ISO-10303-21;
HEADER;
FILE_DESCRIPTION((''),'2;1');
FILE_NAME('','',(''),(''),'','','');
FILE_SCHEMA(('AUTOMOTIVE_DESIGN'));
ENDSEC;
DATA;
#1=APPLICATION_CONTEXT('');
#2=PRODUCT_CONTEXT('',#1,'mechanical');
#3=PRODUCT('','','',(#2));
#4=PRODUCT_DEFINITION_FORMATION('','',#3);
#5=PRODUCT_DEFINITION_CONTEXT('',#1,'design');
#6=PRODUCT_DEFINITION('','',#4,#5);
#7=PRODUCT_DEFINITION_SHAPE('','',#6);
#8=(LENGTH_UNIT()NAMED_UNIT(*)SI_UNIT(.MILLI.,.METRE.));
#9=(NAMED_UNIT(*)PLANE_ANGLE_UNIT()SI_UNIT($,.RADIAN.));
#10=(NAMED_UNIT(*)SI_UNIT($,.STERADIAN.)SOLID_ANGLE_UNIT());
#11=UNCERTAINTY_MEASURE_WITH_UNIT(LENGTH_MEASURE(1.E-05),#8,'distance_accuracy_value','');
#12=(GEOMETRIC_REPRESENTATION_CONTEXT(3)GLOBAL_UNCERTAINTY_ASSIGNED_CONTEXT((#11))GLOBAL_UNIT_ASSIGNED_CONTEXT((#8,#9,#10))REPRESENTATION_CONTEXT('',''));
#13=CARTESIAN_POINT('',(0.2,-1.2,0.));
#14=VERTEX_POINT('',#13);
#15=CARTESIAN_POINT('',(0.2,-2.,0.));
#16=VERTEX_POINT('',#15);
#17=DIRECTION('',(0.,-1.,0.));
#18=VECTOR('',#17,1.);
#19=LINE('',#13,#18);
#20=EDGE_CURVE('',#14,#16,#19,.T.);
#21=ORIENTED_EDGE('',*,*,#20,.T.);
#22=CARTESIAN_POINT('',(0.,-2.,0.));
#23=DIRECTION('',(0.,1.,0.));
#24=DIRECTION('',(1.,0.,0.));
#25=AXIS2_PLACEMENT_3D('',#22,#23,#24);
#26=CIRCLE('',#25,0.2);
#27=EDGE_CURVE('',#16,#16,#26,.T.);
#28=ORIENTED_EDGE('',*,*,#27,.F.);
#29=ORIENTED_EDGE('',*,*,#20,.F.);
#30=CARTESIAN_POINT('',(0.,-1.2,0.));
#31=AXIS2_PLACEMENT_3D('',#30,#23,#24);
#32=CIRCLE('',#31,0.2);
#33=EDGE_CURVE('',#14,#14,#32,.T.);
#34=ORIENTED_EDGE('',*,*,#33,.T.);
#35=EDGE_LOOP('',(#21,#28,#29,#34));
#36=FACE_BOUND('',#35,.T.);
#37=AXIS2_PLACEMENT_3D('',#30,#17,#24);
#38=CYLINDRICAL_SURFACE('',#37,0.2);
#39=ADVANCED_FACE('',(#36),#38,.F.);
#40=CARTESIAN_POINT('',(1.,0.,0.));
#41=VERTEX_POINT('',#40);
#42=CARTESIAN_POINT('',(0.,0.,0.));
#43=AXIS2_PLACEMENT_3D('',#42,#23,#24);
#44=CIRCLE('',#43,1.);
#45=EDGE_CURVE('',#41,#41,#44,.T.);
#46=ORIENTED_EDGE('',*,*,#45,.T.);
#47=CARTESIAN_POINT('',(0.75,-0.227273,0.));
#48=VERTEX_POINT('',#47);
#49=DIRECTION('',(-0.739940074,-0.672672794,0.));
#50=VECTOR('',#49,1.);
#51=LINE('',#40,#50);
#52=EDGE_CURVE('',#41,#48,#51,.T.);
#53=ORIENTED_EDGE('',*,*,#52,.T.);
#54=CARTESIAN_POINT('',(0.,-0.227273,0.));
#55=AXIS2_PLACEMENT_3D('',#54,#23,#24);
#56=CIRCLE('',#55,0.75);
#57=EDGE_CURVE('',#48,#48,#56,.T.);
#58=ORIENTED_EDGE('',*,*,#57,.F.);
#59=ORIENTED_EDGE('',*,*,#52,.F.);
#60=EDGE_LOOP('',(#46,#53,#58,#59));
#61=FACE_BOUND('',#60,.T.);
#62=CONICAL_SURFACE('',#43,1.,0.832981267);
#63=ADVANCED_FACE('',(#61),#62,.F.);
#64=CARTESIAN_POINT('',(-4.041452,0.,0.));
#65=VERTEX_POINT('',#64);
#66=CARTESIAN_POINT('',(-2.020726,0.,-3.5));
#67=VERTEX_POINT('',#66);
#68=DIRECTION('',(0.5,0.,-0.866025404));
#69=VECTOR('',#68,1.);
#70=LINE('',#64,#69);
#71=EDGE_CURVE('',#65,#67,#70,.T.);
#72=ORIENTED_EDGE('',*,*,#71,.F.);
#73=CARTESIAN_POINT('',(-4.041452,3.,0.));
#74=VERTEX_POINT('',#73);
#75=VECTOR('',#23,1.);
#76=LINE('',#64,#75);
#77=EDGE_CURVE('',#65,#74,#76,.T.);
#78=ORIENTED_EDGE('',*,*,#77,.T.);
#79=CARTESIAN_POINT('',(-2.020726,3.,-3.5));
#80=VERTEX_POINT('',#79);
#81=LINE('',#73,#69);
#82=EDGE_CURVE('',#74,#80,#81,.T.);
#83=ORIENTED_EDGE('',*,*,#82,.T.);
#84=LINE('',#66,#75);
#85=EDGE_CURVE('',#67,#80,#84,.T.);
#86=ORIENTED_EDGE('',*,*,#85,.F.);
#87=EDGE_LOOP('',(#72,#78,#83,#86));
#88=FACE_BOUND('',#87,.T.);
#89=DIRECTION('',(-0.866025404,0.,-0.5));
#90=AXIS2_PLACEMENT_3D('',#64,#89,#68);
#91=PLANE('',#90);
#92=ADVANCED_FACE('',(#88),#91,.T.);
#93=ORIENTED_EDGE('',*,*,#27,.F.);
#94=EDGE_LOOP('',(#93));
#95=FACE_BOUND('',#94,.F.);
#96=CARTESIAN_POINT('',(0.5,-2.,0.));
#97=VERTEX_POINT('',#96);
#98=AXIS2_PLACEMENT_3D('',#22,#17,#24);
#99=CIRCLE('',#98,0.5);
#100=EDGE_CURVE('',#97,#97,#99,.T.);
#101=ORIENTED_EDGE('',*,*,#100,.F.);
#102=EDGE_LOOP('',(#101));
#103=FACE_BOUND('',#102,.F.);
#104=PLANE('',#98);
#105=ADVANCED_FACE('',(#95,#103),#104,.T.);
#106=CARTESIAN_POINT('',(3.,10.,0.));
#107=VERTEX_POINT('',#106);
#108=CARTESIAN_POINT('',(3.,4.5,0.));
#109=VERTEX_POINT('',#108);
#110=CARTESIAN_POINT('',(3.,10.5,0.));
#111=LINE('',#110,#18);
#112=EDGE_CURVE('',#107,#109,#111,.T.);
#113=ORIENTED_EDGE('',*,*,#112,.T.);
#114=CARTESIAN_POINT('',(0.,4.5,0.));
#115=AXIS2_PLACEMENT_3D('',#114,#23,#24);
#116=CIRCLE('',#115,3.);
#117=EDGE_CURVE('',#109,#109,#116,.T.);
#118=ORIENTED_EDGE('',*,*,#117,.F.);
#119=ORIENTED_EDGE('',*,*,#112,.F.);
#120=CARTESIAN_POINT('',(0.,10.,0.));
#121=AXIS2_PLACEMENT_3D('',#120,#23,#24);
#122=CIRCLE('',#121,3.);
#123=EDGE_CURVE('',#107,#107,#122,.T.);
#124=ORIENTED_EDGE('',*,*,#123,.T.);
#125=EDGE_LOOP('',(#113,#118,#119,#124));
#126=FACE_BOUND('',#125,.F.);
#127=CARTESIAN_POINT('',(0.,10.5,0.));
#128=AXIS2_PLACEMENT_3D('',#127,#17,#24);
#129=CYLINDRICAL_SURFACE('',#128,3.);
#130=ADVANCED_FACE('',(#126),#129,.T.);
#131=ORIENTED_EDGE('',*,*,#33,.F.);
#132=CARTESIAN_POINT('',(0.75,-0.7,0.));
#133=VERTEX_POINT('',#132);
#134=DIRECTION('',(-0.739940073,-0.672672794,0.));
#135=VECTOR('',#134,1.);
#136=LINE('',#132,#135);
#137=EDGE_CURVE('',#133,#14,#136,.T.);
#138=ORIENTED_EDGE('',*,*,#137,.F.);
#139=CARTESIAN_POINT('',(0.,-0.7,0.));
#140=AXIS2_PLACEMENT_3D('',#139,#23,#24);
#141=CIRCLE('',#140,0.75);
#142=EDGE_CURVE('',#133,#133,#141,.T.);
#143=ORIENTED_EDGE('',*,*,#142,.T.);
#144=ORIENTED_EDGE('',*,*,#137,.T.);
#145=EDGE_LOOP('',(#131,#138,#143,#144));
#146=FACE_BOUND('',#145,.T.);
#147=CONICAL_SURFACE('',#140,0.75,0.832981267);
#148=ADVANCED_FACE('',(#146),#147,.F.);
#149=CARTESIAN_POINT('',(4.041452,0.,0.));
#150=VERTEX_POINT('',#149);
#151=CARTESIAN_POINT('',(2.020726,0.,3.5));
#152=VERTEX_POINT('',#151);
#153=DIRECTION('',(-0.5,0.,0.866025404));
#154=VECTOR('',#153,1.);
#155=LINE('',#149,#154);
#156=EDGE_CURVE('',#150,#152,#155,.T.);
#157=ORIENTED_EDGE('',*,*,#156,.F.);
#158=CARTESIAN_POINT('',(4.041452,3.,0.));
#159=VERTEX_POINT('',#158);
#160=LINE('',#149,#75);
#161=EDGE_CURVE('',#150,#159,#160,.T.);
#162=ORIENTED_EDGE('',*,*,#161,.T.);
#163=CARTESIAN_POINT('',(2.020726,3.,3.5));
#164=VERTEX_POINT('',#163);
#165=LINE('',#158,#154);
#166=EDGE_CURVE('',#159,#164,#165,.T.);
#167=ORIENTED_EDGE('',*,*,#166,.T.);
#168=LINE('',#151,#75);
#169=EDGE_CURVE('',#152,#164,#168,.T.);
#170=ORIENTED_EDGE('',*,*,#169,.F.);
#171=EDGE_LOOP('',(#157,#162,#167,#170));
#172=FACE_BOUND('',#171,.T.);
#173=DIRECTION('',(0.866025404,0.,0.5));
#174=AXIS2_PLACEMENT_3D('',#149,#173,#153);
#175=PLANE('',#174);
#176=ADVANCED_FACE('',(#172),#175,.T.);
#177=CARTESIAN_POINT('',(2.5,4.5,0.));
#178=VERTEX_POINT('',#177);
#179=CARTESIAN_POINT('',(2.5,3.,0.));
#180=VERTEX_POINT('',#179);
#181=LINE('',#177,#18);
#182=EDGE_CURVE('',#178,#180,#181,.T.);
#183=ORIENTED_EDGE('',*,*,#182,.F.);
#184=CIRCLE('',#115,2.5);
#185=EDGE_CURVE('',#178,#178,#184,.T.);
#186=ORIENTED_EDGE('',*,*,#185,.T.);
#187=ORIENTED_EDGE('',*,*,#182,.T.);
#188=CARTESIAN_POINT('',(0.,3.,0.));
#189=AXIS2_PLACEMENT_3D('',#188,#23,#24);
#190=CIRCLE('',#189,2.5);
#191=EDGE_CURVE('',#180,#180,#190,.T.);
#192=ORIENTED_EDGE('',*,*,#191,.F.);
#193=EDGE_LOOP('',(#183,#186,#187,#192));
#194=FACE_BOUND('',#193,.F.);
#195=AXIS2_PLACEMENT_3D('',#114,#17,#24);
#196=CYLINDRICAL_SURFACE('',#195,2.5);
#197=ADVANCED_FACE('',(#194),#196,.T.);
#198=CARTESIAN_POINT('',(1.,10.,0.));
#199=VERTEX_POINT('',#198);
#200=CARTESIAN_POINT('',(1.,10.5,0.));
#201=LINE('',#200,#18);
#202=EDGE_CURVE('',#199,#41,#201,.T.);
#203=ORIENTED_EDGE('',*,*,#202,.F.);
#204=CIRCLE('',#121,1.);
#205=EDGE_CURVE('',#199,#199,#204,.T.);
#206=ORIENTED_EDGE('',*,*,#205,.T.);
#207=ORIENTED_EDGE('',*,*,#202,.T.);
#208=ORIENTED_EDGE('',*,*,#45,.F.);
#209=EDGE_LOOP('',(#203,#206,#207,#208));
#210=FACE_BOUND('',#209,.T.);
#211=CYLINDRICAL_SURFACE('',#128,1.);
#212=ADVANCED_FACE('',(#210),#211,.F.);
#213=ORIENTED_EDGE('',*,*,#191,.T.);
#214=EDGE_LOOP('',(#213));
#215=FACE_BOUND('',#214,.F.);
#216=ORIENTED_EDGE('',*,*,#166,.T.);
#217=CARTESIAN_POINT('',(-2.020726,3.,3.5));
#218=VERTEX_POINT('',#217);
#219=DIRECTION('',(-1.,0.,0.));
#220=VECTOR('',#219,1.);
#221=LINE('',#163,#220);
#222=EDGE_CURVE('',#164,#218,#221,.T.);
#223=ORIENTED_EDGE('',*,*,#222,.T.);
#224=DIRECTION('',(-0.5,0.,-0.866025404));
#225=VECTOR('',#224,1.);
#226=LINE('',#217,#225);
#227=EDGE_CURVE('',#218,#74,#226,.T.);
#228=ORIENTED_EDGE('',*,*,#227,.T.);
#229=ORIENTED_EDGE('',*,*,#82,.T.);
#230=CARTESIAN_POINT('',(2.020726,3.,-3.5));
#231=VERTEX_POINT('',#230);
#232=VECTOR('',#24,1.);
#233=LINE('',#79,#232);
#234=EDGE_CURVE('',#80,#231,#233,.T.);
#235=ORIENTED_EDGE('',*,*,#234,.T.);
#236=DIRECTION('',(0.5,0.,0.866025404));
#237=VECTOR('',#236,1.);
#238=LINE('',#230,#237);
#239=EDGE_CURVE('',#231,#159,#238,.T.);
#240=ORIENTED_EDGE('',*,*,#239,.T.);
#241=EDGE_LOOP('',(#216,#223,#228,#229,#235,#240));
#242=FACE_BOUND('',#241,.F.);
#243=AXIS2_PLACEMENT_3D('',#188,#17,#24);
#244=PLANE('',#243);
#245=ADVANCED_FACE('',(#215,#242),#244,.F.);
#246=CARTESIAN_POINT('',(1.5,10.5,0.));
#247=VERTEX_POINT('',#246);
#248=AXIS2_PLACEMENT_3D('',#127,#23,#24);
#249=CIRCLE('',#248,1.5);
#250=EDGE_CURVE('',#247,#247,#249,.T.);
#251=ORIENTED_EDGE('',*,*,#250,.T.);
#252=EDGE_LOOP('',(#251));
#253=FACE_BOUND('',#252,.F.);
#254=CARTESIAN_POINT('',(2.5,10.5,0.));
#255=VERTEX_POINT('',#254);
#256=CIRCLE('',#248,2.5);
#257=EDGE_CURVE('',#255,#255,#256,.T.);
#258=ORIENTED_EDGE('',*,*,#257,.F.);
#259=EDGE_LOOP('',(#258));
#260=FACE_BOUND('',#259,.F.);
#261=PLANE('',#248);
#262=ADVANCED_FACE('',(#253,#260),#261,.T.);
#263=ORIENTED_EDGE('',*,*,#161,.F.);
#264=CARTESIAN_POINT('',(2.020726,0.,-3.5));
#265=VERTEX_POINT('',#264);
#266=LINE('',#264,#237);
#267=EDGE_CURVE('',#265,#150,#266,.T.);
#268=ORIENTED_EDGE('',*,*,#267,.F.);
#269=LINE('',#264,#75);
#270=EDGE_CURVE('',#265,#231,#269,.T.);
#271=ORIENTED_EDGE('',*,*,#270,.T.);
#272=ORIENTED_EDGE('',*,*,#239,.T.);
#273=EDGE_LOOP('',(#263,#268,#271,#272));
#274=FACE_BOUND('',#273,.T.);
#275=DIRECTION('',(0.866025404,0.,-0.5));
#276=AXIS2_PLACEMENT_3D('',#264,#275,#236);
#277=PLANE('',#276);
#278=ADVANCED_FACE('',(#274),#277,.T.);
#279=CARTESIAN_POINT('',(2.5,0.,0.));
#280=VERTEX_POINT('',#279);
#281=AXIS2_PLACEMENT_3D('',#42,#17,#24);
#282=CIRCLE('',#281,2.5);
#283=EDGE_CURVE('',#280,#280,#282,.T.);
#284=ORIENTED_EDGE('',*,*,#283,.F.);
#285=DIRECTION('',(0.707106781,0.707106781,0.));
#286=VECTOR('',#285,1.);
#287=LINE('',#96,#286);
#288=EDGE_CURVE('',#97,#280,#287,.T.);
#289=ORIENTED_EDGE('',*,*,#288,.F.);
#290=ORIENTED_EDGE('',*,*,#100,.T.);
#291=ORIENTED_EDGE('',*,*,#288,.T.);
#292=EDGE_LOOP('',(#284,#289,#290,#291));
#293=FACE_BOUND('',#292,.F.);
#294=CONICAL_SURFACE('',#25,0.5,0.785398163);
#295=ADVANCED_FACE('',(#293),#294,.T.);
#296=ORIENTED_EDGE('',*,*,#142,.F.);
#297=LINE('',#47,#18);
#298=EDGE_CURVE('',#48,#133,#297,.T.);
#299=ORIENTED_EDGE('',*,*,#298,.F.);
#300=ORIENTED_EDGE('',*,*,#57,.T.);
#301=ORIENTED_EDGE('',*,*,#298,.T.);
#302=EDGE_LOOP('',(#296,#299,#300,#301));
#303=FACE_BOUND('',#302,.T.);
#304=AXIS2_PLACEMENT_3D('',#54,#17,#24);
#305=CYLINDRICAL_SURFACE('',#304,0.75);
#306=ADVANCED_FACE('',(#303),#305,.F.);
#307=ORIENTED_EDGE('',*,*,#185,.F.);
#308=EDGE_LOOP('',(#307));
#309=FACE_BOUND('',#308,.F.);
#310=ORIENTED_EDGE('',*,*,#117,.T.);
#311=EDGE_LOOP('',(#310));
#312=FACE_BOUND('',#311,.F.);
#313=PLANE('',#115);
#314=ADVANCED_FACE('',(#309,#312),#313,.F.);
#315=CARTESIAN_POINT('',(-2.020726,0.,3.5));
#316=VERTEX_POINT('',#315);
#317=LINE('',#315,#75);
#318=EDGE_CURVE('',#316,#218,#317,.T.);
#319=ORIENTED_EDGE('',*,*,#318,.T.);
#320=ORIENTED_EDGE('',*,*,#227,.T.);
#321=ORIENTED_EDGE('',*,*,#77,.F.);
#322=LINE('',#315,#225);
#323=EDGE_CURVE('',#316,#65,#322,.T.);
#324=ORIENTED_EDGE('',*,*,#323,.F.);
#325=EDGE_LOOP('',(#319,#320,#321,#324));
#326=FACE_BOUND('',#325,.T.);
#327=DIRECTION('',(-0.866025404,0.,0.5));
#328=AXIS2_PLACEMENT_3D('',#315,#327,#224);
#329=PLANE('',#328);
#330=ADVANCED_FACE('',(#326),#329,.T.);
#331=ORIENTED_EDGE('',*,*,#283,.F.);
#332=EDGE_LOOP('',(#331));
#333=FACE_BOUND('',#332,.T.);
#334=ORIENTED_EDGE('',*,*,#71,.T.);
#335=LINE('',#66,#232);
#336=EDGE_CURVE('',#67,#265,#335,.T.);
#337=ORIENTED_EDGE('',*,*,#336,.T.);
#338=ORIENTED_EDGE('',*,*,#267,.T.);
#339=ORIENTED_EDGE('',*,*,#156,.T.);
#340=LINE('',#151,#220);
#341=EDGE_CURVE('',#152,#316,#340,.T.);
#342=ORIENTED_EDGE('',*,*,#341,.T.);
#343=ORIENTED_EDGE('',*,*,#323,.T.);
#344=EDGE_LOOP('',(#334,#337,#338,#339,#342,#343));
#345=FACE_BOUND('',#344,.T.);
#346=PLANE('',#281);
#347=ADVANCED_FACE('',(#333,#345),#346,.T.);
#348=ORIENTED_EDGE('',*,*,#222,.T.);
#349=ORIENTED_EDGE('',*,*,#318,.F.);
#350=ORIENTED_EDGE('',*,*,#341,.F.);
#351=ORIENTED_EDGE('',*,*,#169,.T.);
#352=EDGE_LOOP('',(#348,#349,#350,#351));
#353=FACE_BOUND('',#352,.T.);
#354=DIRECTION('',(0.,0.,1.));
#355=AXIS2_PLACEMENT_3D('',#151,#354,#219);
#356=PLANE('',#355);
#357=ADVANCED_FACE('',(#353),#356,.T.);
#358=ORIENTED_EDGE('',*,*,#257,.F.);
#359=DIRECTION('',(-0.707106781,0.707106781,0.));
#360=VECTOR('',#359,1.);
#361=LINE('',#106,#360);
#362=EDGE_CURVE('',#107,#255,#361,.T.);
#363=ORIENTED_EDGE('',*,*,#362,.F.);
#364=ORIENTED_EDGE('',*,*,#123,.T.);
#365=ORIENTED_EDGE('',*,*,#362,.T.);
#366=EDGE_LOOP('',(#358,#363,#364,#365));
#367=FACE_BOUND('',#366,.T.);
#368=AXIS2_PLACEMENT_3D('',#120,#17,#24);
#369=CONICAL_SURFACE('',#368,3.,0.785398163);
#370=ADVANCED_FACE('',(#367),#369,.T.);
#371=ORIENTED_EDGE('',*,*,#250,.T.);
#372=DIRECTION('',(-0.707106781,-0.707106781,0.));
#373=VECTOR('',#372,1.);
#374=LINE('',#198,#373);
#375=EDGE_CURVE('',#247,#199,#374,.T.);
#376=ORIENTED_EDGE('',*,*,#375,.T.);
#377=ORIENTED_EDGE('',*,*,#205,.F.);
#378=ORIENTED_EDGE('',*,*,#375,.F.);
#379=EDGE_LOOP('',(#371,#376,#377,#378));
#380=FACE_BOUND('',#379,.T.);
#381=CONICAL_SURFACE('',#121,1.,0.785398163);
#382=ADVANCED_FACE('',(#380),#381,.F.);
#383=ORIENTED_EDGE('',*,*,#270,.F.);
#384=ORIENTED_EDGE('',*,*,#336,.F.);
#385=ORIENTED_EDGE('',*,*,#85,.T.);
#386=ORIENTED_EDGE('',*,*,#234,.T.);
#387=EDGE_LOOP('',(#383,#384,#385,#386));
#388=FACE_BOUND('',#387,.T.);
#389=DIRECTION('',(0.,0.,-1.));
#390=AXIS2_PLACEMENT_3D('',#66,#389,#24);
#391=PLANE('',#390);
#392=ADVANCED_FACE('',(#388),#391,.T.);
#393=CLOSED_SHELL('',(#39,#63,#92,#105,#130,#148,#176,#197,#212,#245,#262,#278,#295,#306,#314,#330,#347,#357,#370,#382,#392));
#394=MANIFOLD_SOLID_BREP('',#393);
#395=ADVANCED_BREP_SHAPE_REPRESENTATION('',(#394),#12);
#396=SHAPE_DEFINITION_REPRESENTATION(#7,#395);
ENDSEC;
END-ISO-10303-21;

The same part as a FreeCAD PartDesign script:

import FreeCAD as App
import Part
import Sketcher
Q = App.Units.Quantity


def edges_at(feature, points):
    """Names of the edges that pass closest to the given points."""
    edges = feature.Shape.Edges
    near = lambda p: min(range(len(edges)), key=lambda i: edges[i].distToShape(Part.Vertex(*p))[0])
    return sorted({f"Edge{near(p) + 1}" for p in points})


def add_polygon(sketch, points):
    """Adds a closed chain of lines whose ends are joined by coincident constraints."""
    first, n = sketch.GeometryCount, len(points)
    for a, b in zip(points, points[1:] + points[:1]):
        sketch.addGeometry(Part.LineSegment(App.Vector(*a, 0), App.Vector(*b, 0)), False)
    for i in range(n):
        sketch.addConstraint(Sketcher.Constraint("Coincident", first + i, 2, first + (i + 1) % n, 1))

doc = App.newDocument("Part")
body = doc.addObject("PartDesign::Body", "Body")

sketch1 = body.newObject("Sketcher::SketchObject", "Sketch")
sketch1.AttachmentSupport = (doc.getObject("XZ_Plane"), [""])
sketch1.MapMode = "FlatFace"
add_polygon(sketch1, [(2, -3.5), (4, 0), (2, 3.5), (-2, 3.5), (-4, 0), (-2, -3.5)])
sketch1.addConstraint([
    Sketcher.Constraint("Horizontal", 2),
    Sketcher.Constraint("Horizontal", 5),
    Sketcher.Constraint("Symmetric", 0, 2, 3, 2, -1, 1),
    Sketcher.Constraint("Symmetric", 1, 2, 4, 2, -1, 1),
    Sketcher.Constraint("PointOnObject", 0, 2, -1),
    Sketcher.Constraint("Parallel", 0, 3),
    Sketcher.Constraint("Vertical", 2, 2, 4, 2),
    Sketcher.Constraint("Angle", 0, Q("60 deg")),
    Sketcher.Constraint("DistanceY", 4, 2, 2, 2, Q("7 mm")),
    Sketcher.Constraint("DistanceX", 2, 2, 2, 1, Q("4.041452 mm")),
])
pad1 = body.newObject("PartDesign::Pad", "Pad")
pad1.Profile = sketch1
pad1.Length = 3
pad1.Reversed = True

sketch2 = body.newObject("Sketcher::SketchObject", "Sketch001")
sketch2.AttachmentSupport = (doc.getObject("XY_Plane"), [""])
sketch2.MapMode = "FlatFace"
add_polygon(sketch2, [(2.5, 3), (0, 3), (0, 10.5), (3, 10.5), (3, 4.5), (2.5, 4.5)])
sketch2.addConstraint([
    Sketcher.Constraint("Horizontal", 0),
    Sketcher.Constraint("Vertical", 1),
    Sketcher.Constraint("Horizontal", 2),
    Sketcher.Constraint("Vertical", 3),
    Sketcher.Constraint("Horizontal", 4),
    Sketcher.Constraint("Vertical", 5),
    Sketcher.Constraint("PointOnObject", 0, 2, -2),
    Sketcher.Constraint("DistanceX", 2, 1, 2, 2, Q("3 mm")),
    Sketcher.Constraint("DistanceY", 3, 2, 3, 1, Q("6 mm")),
    Sketcher.Constraint("DistanceX", 0, 2, 0, 1, Q("2.5 mm")),
    Sketcher.Constraint("DistanceY", 1, 1, 1, 2, Q("7.5 mm")),
    Sketcher.Constraint("DistanceY", -1, 1, 0, 2, Q("3 mm")),
])
revolution = body.newObject("PartDesign::Revolution", "Revolution")
revolution.Profile = sketch2
revolution.ReferenceAxis = (sketch2, ["V_Axis"])
revolution.Angle = 360

sketch3 = body.newObject("Sketcher::SketchObject", "Sketch002")
sketch3.AttachmentSupport = (doc.getObject("XY_Plane"), [""])
sketch3.MapMode = "FlatFace"
add_polygon(sketch3, [(2.5, 0), (0, 0), (0, -2), (0.5, -2)])
sketch3.addConstraint([
    Sketcher.Constraint("Horizontal", 0),
    Sketcher.Constraint("Vertical", 1),
    Sketcher.Constraint("Horizontal", 2),
    Sketcher.Constraint("Coincident", 0, 2, -1, 1),
    Sketcher.Constraint("DistanceY", 1, 2, 1, 1, Q("2 mm")),
    Sketcher.Constraint("Angle", 3, Q("45 deg")),
    Sketcher.Constraint("DistanceX", 0, 2, 0, 1, Q("2.5 mm")),
])
revolution2 = body.newObject("PartDesign::Revolution", "Revolution001")
revolution2.Profile = sketch3
revolution2.ReferenceAxis = (sketch3, ["V_Axis"])
revolution2.Angle = 360

sketch4 = body.newObject("Sketcher::SketchObject", "Sketch003")
sketch4.AttachmentSupport = (doc.getObject("XY_Plane"), [""])
sketch4.MapMode = "FlatFace"
add_polygon(sketch4, [(0.2, -2), (0, -2), (0, 10.5), (1, 10.5), (1, 0), (0.75, -0.23), (0.75, -0.7), (0.2, -1.2)])
sketch4.addConstraint([
    Sketcher.Constraint("Horizontal", 0),
    Sketcher.Constraint("Vertical", 1),
    Sketcher.Constraint("Horizontal", 2),
    Sketcher.Constraint("Vertical", 3),
    Sketcher.Constraint("Vertical", 5),
    Sketcher.Constraint("Vertical", 7),
    Sketcher.Constraint("PointOnObject", 0, 2, -2),
    Sketcher.Constraint("PointOnObject", 3, 2, -1),
    Sketcher.Constraint("Parallel", 4, 6),
    Sketcher.Constraint("DistanceX", 2, 1, 2, 2, Q("1 mm")),
    Sketcher.Constraint("DistanceX", 0, 2, 0, 1, Q("0.2 mm")),
    Sketcher.Constraint("DistanceY", 1, 1, 1, 2, Q("12.5 mm")),
    Sketcher.Constraint("DistanceY", 3, 2, 3, 1, Q("10.5 mm")),
    Sketcher.Constraint("DistanceY", 7, 2, 7, 1, Q("0.8 mm")),
    Sketcher.Constraint("DistanceY", 5, 2, -1, 1, Q("0.7 mm")),
    Sketcher.Constraint("DistanceX", -1, 1, 4, 2, Q("0.75 mm")),
])
groove = body.newObject("PartDesign::Groove", "Groove")
groove.Profile = sketch4
groove.ReferenceAxis = (sketch4, ["V_Axis"])
groove.Angle = 360
doc.recompute()

chamfer = body.newObject("PartDesign::Chamfer", "Chamfer")
chamfer.Base = (groove, edges_at(groove, [(-3, 10.5, 0), (-1, 10.5, 0)]))
chamfer.Size = 0.5

doc.recompute()
